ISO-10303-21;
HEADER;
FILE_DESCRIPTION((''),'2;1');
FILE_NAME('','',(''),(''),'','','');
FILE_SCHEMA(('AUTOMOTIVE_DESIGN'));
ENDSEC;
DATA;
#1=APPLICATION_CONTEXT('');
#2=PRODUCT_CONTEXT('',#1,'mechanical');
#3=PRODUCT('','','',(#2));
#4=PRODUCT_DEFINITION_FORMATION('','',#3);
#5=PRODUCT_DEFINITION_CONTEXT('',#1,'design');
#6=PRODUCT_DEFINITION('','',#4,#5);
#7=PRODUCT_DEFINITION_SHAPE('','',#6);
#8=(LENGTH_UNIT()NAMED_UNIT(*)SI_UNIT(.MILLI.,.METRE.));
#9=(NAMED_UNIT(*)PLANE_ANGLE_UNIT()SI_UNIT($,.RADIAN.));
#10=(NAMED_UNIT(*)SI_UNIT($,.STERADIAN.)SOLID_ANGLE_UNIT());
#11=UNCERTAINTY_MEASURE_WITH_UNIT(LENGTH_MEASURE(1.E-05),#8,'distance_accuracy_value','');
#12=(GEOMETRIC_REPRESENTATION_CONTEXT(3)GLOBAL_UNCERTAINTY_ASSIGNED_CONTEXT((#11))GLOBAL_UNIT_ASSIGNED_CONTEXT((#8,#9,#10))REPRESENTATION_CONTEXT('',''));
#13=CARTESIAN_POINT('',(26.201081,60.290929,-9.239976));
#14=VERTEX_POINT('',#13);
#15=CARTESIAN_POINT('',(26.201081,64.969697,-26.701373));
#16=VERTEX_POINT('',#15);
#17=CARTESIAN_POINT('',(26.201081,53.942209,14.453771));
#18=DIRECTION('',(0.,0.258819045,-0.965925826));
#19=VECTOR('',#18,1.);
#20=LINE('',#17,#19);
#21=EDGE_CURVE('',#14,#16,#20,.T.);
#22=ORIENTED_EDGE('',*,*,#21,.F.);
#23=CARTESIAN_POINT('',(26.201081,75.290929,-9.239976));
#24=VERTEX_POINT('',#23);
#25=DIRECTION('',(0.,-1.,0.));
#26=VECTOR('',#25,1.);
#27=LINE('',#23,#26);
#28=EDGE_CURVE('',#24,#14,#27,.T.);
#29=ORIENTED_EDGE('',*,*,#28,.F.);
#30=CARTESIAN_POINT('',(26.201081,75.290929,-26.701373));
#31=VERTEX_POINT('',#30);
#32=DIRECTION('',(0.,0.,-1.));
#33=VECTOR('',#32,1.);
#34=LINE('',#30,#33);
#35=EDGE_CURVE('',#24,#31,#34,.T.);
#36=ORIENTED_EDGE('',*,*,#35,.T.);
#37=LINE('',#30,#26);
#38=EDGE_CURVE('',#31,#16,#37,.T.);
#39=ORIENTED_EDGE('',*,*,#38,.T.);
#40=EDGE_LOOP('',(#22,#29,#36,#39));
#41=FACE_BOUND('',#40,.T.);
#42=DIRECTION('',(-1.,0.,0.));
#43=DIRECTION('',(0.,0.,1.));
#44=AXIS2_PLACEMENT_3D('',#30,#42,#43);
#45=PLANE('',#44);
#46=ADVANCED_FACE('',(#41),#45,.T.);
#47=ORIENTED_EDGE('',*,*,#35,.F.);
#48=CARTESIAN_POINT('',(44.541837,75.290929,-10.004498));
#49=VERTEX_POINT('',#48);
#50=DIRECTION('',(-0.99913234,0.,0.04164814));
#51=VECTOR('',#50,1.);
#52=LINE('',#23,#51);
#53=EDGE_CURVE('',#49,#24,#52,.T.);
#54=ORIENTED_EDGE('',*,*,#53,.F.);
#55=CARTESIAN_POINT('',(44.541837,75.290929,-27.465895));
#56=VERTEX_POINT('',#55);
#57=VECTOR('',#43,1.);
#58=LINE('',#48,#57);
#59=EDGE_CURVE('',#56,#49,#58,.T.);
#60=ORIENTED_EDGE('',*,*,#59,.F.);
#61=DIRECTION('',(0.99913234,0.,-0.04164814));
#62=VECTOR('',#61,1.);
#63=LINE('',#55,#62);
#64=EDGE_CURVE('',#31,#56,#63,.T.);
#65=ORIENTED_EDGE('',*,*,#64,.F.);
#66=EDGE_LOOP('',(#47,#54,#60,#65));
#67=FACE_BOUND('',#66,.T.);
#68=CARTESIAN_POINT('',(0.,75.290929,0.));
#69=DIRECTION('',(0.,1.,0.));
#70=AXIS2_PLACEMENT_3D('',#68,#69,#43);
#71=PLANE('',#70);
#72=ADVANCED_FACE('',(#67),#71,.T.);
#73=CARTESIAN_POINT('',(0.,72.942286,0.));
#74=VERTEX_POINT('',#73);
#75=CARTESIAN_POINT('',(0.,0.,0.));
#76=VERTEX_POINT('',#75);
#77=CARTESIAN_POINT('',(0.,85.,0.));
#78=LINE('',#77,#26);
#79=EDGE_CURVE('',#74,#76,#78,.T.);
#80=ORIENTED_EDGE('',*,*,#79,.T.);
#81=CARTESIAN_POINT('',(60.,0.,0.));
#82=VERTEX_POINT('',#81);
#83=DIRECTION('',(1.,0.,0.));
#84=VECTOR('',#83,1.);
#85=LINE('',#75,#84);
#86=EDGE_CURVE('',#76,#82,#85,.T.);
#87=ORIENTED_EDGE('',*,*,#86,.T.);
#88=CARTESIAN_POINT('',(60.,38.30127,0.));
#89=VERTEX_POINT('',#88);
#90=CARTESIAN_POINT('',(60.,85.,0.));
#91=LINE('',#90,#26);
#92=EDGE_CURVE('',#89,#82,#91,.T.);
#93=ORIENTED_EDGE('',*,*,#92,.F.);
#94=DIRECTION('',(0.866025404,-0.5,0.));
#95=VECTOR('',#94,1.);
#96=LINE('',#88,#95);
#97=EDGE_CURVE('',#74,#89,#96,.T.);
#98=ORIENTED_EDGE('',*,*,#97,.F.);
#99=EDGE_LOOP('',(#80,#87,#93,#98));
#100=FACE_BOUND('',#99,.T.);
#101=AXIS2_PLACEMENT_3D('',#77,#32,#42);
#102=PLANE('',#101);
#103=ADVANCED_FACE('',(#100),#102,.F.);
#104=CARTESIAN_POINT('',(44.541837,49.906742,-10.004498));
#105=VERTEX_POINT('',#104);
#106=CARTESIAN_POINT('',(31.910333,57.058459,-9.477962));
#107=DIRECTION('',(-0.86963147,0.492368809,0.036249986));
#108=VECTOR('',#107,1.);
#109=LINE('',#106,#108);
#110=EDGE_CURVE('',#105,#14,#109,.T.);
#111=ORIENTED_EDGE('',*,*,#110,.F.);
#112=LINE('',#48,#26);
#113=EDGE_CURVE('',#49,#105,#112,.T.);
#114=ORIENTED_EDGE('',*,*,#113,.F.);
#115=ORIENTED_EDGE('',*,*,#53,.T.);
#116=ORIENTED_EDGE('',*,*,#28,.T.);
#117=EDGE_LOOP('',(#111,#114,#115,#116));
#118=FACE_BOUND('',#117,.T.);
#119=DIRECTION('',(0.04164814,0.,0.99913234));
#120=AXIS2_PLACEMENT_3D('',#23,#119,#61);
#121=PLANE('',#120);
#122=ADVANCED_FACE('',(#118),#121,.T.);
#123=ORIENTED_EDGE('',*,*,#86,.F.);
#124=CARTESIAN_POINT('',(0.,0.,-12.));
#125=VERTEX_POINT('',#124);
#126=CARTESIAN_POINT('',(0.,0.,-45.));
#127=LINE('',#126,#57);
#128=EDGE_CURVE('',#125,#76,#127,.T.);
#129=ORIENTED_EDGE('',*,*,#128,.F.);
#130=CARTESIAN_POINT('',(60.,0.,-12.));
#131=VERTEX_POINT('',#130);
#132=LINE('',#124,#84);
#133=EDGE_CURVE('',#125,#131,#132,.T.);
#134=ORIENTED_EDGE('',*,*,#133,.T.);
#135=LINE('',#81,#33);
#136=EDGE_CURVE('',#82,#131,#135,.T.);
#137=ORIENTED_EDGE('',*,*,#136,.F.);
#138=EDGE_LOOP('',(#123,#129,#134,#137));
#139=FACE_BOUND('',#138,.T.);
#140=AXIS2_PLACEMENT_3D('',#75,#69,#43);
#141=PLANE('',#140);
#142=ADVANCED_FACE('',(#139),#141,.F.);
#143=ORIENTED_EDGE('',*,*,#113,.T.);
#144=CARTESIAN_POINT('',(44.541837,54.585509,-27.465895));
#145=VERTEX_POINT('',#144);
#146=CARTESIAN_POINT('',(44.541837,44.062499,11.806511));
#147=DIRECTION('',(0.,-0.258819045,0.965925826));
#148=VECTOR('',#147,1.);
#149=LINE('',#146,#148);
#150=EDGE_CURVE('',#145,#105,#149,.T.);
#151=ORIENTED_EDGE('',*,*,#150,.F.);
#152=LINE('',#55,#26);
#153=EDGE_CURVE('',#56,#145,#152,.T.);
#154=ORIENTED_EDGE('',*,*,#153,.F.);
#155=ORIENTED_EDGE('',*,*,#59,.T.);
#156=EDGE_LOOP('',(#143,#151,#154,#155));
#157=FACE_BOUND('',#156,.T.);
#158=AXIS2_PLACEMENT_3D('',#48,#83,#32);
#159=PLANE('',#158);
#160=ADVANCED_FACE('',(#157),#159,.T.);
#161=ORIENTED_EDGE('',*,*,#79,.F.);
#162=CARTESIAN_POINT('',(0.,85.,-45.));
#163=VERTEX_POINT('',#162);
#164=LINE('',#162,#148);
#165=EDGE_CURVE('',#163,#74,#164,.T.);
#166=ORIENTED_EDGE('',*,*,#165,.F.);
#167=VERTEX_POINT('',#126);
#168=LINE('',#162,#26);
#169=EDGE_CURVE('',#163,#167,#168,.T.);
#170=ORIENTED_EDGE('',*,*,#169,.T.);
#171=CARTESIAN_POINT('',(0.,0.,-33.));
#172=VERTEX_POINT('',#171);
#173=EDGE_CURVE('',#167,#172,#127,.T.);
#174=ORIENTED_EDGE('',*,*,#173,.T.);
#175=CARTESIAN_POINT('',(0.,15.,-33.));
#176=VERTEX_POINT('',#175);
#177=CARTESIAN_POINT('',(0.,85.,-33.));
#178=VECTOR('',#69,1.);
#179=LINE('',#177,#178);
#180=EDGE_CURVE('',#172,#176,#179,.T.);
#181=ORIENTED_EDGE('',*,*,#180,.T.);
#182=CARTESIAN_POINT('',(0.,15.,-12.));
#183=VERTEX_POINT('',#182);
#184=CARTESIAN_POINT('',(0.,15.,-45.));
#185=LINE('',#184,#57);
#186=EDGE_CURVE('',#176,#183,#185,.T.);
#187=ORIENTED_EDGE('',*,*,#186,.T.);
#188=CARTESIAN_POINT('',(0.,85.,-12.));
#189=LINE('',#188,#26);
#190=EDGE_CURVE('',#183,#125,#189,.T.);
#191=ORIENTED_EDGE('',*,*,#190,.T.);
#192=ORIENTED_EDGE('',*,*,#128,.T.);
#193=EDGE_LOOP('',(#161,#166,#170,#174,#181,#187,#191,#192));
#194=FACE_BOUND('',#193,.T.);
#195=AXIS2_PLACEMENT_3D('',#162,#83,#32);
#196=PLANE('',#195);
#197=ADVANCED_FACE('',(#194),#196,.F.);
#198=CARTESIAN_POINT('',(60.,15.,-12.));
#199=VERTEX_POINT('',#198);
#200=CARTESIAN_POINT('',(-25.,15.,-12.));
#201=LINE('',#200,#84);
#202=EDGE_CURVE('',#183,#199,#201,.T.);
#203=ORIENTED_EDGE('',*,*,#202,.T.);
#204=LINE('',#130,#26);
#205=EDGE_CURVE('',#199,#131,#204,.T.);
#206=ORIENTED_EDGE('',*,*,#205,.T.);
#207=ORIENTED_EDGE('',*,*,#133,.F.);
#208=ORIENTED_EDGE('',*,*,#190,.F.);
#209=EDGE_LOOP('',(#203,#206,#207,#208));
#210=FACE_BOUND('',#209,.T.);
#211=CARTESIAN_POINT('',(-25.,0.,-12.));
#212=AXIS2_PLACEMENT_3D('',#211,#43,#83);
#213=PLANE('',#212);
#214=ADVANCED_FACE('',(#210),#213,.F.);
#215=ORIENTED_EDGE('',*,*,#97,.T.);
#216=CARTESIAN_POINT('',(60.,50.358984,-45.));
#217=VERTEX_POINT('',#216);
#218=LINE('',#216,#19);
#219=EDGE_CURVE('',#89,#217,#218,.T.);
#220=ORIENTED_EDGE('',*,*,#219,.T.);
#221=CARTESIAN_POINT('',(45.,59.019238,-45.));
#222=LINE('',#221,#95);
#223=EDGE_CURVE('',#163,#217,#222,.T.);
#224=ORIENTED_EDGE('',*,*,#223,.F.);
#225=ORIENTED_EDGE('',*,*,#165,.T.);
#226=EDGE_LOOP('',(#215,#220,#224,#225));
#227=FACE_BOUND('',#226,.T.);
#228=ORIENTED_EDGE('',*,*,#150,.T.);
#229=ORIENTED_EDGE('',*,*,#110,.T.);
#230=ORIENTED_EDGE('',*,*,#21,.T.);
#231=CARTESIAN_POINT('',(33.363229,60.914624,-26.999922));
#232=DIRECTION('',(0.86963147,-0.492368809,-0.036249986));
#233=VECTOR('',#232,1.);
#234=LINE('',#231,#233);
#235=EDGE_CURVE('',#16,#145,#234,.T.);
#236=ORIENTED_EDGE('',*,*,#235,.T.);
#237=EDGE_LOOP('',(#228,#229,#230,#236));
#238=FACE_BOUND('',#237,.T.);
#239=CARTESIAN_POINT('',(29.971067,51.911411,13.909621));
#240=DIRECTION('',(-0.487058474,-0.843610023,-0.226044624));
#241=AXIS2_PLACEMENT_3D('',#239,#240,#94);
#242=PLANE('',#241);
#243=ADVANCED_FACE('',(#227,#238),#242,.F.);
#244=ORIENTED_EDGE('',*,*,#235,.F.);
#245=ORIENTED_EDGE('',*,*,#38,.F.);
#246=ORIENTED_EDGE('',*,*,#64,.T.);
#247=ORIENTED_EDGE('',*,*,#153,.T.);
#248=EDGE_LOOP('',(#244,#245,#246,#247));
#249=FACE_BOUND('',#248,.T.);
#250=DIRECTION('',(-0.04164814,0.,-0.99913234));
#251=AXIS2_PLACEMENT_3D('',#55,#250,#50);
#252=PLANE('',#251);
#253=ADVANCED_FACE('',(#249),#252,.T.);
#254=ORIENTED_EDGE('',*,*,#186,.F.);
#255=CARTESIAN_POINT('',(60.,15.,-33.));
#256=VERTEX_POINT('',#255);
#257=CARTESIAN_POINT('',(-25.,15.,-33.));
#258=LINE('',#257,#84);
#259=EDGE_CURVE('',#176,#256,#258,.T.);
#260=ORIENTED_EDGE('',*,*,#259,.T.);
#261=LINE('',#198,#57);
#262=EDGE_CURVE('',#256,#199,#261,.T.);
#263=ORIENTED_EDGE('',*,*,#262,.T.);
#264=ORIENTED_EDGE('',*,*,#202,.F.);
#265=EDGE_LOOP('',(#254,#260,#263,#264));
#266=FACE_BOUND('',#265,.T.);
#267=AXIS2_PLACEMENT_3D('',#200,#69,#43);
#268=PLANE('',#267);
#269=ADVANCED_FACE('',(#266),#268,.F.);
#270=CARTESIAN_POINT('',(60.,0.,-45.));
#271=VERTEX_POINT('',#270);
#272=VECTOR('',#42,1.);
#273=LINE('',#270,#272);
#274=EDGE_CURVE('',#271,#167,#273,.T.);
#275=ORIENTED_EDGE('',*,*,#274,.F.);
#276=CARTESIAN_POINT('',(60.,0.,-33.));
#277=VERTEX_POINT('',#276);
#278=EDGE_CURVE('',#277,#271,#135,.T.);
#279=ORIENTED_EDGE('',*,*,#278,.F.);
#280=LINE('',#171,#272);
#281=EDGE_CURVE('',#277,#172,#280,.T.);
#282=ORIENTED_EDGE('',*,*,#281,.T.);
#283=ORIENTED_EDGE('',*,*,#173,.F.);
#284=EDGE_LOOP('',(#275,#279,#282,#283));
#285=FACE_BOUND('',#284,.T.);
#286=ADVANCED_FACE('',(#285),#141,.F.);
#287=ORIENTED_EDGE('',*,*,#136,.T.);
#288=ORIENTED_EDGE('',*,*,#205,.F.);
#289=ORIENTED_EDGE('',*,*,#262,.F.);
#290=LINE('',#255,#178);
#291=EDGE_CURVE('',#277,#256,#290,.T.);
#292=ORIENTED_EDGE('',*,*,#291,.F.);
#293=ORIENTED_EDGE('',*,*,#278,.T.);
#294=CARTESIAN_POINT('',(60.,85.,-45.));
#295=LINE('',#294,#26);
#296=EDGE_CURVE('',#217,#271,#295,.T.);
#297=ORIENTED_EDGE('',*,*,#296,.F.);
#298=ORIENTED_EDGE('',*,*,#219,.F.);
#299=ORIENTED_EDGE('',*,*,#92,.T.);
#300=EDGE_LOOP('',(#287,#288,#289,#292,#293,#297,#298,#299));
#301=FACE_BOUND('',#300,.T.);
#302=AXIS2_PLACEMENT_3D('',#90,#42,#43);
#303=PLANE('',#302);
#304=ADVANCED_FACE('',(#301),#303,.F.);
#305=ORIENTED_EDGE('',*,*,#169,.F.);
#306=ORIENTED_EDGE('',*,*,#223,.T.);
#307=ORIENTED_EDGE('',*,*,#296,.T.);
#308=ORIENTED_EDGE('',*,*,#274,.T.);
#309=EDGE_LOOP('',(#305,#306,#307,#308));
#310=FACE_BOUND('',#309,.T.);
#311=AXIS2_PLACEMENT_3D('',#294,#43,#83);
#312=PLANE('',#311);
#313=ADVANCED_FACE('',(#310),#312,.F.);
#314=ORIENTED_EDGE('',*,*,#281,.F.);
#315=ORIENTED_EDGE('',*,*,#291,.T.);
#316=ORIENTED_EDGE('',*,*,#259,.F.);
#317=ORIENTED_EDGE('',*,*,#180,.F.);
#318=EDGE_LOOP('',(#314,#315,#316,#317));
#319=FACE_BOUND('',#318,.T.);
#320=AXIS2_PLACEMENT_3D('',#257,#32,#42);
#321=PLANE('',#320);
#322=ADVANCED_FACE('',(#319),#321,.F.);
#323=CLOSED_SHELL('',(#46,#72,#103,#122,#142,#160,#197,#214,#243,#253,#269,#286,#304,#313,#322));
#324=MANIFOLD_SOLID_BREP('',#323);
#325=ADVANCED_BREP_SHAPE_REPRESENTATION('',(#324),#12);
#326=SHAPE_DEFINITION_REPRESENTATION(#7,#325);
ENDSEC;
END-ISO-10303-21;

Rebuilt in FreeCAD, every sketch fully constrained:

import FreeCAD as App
import Part
import Sketcher
Q = App.Units.Quantity


def add_polygon(sketch, points):
    """Adds a closed chain of lines whose ends are joined by coincident constraints."""
    first, n = sketch.GeometryCount, len(points)
    for a, b in zip(points, points[1:] + points[:1]):
        sketch.addGeometry(Part.LineSegment(App.Vector(*a, 0), App.Vector(*b, 0)), False)
    for i in range(n):
        sketch.addConstraint(Sketcher.Constraint("Coincident", first + i, 2, first + (i + 1) % n, 1))

doc = App.newDocument("Part")
body = doc.addObject("PartDesign::Body", "Body")

# Sketch on XZ plane
sketch1 = body.newObject("Sketcher::SketchObject", "Sketch")
sketch1.AttachmentSupport = (doc.getObject("XZ_Plane"), [""])
sketch1.MapMode = "FlatFace"
add_polygon(sketch1, [(0, -45), (0, 0), (60, 0), (60, -45)])  # lines 0-3
sketch1.addConstraint([
    Sketcher.Constraint("Vertical", 0),
    Sketcher.Constraint("Horizontal", 1),
    Sketcher.Constraint("Vertical", 2),
    Sketcher.Constraint("Horizontal", 3),
    Sketcher.Constraint("Coincident", 0, 2, -1, 1),
    Sketcher.Constraint("DistanceX", 1, 1, 1, 2, Q("60 mm")),
    Sketcher.Constraint("DistanceY", 0, 1, 0, 2, Q("45 mm")),
])
pad1 = body.newObject("PartDesign::Pad", "Pad")
pad1.Profile = sketch1
pad1.Length = 85
pad1.Reversed = True

# Sketch on YZ plane
sketch2 = body.newObject("Sketcher::SketchObject", "Sketch001")
sketch2.AttachmentSupport = (doc.getObject("YZ_Plane"), [""])
sketch2.MapMode = "FlatFace"
sketch2.AttachmentOffset = App.Placement(App.Vector(0, 0, 60), App.Rotation())
add_polygon(sketch2, [(15, -12), (0, -12), (0, -33), (15, -33)])  # lines 0-3
sketch2.addConstraint([
    Sketcher.Constraint("Horizontal", 0),
    Sketcher.Constraint("Vertical", 1),
    Sketcher.Constraint("Horizontal", 2),
    Sketcher.Constraint("Vertical", 3),
    Sketcher.Constraint("PointOnObject", 0, 2, -2),
    Sketcher.Constraint("DistanceX", 0, 2, 0, 1, Q("15 mm")),
    Sketcher.Constraint("DistanceY", 1, 2, 1, 1, Q("21 mm")),
    Sketcher.Constraint("DistanceY", 0, 2, -1, 1, Q("12 mm")),
])
pocket1 = body.newObject("PartDesign::Pocket", "Pocket")
pocket1.Profile = sketch2
pocket1.Length = 85

# Sketch on XY plane
sketch3 = body.newObject("Sketcher::SketchObject", "Sketch002")
sketch3.AttachmentSupport = (doc.getObject("XY_Plane"), [""])
sketch3.MapMode = "FlatFace"
add_polygon(sketch3, [(0, 85), (60, 50.358984), (60, 85)])  # lines 0-2
sketch3.addConstraint([
    Sketcher.Constraint("Vertical", 1),
    Sketcher.Constraint("Horizontal", 2),
    Sketcher.Constraint("PointOnObject", 2, 2, -2),
    Sketcher.Constraint("DistanceX", 2, 2, 2, 1, Q("60 mm")),
    Sketcher.Constraint("Angle", 0, Q("-30 deg")),
    Sketcher.Constraint("DistanceY", -1, 1, 1, 2, Q("85 mm")),
])
pocket2 = body.newObject("PartDesign::Pocket", "Pocket001")
pocket2.Profile = sketch3
pocket2.Length = 53

# Sketch on YZ plane
sketch4 = body.newObject("Sketcher::SketchObject", "Sketch003")
sketch4.AttachmentSupport = (doc.getObject("YZ_Plane"), [""])
sketch4.MapMode = "FlatFace"
add_polygon(sketch4, [(85, -45), (72.942286, 0), (85, 0)])  # lines 0-2
sketch4.addConstraint([
    Sketcher.Constraint("Horizontal", 1),
    Sketcher.Constraint("Vertical", 2),
    Sketcher.Constraint("PointOnObject", 0, 2, -1),
    Sketcher.Constraint("DistanceY", 2, 2, 2, 1, Q("45 mm")),
    Sketcher.Constraint("Angle", 0, Q("105 deg")),
    Sketcher.Constraint("DistanceX", -1, 1, 1, 2, Q("85 mm")),
])
pocket3 = body.newObject("PartDesign::Pocket", "Pocket002")
pocket3.Profile = sketch4
pocket3.Length = 42
pocket3.Reversed = True

# Sketch on an angled plane
sketch5 = body.newObject("Sketcher::SketchObject", "Sketch004")
sketch5.Placement = App.Placement(App.Vector(29.971067, 51.911411, 13.909621), App.Rotation(App.Vector(0.873369362, -0.470462359, -0.126060009), App.Vector(0, 0.258819045, -0.965925826), App.Vector(0.487058474, 0.843610023, 0.226044624), "ZXY"))
add_polygon(sketch5, [(34.382856, 9.913098), (34.382856, 56.500526), (-34.3166, 65.466281), (-34.3166, 18.878853)])  # lines 0-3
sketch5.addConstraint([
    Sketcher.Constraint("Vertical", 0),
    Sketcher.Constraint("Vertical", 2),
    Sketcher.Constraint("Parallel", 1, 3),
    Sketcher.Constraint("DistanceY", 0, 1, 0, 2, Q("46.587428 mm")),
    Sketcher.Constraint("DistanceX", 1, 2, -1, 1, Q("34.3166 mm")),
    Sketcher.Constraint("DistanceY", -1, 1, 3, 2, Q("9.913098 mm")),
    Sketcher.Constraint("DistanceY", -1, 1, 1, 2, Q("65.466281 mm")),
    Sketcher.Constraint("Distance", 1, Q("69.282032 mm")),
])
pocket4 = body.newObject("PartDesign::Pocket", "Pocket003")
pocket4.Profile = sketch5
pocket4.Length = 42
pocket4.Reversed = True

# Sketch on XZ plane
sketch6 = body.newObject("Sketcher::SketchObject", "Sketch005")
sketch6.AttachmentSupport = (doc.getObject("XZ_Plane"), [""])
sketch6.MapMode = "FlatFace"
sketch6.AttachmentOffset = App.Placement(App.Vector(0, 0, -60.290929), App.Rotation())
add_polygon(sketch6, [(44.541837, -10.004498), (26.201081, -9.239976), (26.201081, -26.701373), (44.541837, -27.465895)])  # lines 0-3
sketch6.addConstraint([
    Sketcher.Constraint("Vertical", 1),
    Sketcher.Constraint("Vertical", 3),
    Sketcher.Constraint("Parallel", 0, 2),
    Sketcher.Constraint("DistanceY", 1, 2, 1, 1, Q("17.461397 mm")),
    Sketcher.Constraint("DistanceX", -1, 1, 0, 2, Q("26.201081 mm")),
    Sketcher.Constraint("DistanceY", 2, 2, 1, 2, Q("0.764522 mm")),
    Sketcher.Constraint("Distance", 0, Q("18.356684 mm")),
    Sketcher.Constraint("DistanceY", 0, 2, -1, 1, Q("9.239976 mm")),
])
pad2 = body.newObject("PartDesign::Pad", "Pad001")
pad2.Profile = sketch6
pad2.Type = "TwoLengths"
pad2.Length = 15
pad2.Length2 = 15

doc.recompute()
